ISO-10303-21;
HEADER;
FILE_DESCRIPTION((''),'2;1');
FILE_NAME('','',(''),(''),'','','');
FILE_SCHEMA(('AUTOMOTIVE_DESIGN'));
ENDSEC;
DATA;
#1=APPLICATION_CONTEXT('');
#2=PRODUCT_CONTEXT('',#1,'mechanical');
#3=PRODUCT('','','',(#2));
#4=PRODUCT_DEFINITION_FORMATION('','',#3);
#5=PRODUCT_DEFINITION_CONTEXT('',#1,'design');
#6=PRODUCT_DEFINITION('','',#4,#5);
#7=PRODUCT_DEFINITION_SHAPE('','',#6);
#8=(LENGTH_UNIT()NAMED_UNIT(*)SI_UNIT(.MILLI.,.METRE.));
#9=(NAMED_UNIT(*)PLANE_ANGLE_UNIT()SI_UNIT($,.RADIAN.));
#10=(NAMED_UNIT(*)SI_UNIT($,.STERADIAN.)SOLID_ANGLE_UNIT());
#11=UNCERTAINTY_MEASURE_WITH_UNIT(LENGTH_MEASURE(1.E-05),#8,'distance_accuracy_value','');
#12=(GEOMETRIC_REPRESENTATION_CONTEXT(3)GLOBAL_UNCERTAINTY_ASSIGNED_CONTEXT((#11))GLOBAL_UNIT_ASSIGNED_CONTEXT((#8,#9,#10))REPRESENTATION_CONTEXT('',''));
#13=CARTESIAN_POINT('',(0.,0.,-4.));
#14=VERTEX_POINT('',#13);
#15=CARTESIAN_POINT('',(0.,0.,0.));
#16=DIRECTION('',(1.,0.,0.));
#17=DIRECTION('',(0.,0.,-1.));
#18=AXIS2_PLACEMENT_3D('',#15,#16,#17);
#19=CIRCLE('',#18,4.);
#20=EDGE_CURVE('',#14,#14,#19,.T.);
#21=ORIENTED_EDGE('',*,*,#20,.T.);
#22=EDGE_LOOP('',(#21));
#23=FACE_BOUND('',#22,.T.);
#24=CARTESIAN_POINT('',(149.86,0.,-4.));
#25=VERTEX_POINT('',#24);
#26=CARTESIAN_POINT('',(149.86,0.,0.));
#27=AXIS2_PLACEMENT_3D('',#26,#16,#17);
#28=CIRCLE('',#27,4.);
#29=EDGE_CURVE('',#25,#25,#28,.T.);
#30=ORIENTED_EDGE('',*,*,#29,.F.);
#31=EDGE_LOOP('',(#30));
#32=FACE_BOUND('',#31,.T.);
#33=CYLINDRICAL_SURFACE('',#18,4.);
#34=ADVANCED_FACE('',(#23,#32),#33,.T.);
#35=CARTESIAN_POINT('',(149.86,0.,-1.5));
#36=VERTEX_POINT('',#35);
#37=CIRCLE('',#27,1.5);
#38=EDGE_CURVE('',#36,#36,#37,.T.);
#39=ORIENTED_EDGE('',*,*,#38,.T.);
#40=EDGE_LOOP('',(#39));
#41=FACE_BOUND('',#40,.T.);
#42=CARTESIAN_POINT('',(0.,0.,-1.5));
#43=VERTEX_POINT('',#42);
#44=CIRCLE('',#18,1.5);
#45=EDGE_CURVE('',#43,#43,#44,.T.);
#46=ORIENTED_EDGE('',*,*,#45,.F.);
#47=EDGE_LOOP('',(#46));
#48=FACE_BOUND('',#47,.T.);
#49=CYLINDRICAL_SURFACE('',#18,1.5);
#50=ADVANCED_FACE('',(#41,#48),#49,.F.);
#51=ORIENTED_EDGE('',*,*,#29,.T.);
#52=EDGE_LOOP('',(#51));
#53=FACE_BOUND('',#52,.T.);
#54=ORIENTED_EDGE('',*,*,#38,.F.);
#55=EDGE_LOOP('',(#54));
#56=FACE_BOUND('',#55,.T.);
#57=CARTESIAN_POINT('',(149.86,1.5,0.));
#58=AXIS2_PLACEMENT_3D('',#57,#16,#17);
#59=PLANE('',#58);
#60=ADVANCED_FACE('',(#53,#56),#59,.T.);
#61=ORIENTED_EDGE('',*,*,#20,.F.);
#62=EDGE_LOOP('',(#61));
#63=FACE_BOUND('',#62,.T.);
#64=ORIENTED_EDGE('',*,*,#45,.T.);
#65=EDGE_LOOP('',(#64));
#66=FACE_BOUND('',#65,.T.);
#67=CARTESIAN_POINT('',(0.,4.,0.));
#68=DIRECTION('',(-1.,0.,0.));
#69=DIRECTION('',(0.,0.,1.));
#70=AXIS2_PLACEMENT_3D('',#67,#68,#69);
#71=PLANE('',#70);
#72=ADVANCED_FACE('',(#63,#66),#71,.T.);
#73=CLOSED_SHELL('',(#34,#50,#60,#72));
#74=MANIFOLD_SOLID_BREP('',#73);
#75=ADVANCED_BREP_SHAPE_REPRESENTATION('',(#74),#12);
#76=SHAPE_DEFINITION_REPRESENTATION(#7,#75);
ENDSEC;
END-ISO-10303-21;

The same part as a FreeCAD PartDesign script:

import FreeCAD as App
import Part
import Sketcher

V = App.Vector
Q = App.Units.Quantity


def add_polygon(sketch, points):
    """Adds a closed chain of lines whose ends are joined by coincident constraints."""
    first, n = sketch.GeometryCount, len(points)
    for a, b in zip(points, points[1:] + points[:1]):
        sketch.addGeometry(Part.LineSegment(App.Vector(*a, 0), App.Vector(*b, 0)), False)
    for i in range(n):
        sketch.addConstraint(Sketcher.Constraint("Coincident", first + i, 2, first + (i + 1) % n, 1))

doc = App.newDocument("Part")
body = doc.addObject("PartDesign::Body", "Body")

# Sketch on XY plane
sketch1 = body.newObject("Sketcher::SketchObject", "Sketch")
sketch1.AttachmentSupport = (doc.getObject("XY_Plane"), [""])
sketch1.MapMode = "FlatFace"
add_polygon(sketch1, [(0, 4), (0, 1.5), (149.86, 1.5), (149.86, 4)])  # lines 0-3
sketch1.addConstraint(Sketcher.Constraint("Vertical", 0))
sketch1.addConstraint(Sketcher.Constraint("Horizontal", 1))
sketch1.addConstraint(Sketcher.Constraint("Vertical", 2))
sketch1.addConstraint(Sketcher.Constraint("Horizontal", 3))
sketch1.addConstraint(Sketcher.Constraint("PointOnObject", 0, 2, -2))
sketch1.addConstraint(Sketcher.Constraint("DistanceY", 0, 2, 0, 1, Q("2.5 mm")))
sketch1.addConstraint(Sketcher.Constraint("DistanceY", -1, 1, 2, 2, Q("4 mm")))
sketch1.addConstraint(Sketcher.Constraint("DistanceX", 1, 1, 1, 2, Q("149.86 mm")))
revolution = body.newObject("PartDesign::Revolution", "Revolution")
revolution.Profile = sketch1
revolution.ReferenceAxis = (sketch1, ["H_Axis"])
revolution.Angle = 360

doc.recompute()
